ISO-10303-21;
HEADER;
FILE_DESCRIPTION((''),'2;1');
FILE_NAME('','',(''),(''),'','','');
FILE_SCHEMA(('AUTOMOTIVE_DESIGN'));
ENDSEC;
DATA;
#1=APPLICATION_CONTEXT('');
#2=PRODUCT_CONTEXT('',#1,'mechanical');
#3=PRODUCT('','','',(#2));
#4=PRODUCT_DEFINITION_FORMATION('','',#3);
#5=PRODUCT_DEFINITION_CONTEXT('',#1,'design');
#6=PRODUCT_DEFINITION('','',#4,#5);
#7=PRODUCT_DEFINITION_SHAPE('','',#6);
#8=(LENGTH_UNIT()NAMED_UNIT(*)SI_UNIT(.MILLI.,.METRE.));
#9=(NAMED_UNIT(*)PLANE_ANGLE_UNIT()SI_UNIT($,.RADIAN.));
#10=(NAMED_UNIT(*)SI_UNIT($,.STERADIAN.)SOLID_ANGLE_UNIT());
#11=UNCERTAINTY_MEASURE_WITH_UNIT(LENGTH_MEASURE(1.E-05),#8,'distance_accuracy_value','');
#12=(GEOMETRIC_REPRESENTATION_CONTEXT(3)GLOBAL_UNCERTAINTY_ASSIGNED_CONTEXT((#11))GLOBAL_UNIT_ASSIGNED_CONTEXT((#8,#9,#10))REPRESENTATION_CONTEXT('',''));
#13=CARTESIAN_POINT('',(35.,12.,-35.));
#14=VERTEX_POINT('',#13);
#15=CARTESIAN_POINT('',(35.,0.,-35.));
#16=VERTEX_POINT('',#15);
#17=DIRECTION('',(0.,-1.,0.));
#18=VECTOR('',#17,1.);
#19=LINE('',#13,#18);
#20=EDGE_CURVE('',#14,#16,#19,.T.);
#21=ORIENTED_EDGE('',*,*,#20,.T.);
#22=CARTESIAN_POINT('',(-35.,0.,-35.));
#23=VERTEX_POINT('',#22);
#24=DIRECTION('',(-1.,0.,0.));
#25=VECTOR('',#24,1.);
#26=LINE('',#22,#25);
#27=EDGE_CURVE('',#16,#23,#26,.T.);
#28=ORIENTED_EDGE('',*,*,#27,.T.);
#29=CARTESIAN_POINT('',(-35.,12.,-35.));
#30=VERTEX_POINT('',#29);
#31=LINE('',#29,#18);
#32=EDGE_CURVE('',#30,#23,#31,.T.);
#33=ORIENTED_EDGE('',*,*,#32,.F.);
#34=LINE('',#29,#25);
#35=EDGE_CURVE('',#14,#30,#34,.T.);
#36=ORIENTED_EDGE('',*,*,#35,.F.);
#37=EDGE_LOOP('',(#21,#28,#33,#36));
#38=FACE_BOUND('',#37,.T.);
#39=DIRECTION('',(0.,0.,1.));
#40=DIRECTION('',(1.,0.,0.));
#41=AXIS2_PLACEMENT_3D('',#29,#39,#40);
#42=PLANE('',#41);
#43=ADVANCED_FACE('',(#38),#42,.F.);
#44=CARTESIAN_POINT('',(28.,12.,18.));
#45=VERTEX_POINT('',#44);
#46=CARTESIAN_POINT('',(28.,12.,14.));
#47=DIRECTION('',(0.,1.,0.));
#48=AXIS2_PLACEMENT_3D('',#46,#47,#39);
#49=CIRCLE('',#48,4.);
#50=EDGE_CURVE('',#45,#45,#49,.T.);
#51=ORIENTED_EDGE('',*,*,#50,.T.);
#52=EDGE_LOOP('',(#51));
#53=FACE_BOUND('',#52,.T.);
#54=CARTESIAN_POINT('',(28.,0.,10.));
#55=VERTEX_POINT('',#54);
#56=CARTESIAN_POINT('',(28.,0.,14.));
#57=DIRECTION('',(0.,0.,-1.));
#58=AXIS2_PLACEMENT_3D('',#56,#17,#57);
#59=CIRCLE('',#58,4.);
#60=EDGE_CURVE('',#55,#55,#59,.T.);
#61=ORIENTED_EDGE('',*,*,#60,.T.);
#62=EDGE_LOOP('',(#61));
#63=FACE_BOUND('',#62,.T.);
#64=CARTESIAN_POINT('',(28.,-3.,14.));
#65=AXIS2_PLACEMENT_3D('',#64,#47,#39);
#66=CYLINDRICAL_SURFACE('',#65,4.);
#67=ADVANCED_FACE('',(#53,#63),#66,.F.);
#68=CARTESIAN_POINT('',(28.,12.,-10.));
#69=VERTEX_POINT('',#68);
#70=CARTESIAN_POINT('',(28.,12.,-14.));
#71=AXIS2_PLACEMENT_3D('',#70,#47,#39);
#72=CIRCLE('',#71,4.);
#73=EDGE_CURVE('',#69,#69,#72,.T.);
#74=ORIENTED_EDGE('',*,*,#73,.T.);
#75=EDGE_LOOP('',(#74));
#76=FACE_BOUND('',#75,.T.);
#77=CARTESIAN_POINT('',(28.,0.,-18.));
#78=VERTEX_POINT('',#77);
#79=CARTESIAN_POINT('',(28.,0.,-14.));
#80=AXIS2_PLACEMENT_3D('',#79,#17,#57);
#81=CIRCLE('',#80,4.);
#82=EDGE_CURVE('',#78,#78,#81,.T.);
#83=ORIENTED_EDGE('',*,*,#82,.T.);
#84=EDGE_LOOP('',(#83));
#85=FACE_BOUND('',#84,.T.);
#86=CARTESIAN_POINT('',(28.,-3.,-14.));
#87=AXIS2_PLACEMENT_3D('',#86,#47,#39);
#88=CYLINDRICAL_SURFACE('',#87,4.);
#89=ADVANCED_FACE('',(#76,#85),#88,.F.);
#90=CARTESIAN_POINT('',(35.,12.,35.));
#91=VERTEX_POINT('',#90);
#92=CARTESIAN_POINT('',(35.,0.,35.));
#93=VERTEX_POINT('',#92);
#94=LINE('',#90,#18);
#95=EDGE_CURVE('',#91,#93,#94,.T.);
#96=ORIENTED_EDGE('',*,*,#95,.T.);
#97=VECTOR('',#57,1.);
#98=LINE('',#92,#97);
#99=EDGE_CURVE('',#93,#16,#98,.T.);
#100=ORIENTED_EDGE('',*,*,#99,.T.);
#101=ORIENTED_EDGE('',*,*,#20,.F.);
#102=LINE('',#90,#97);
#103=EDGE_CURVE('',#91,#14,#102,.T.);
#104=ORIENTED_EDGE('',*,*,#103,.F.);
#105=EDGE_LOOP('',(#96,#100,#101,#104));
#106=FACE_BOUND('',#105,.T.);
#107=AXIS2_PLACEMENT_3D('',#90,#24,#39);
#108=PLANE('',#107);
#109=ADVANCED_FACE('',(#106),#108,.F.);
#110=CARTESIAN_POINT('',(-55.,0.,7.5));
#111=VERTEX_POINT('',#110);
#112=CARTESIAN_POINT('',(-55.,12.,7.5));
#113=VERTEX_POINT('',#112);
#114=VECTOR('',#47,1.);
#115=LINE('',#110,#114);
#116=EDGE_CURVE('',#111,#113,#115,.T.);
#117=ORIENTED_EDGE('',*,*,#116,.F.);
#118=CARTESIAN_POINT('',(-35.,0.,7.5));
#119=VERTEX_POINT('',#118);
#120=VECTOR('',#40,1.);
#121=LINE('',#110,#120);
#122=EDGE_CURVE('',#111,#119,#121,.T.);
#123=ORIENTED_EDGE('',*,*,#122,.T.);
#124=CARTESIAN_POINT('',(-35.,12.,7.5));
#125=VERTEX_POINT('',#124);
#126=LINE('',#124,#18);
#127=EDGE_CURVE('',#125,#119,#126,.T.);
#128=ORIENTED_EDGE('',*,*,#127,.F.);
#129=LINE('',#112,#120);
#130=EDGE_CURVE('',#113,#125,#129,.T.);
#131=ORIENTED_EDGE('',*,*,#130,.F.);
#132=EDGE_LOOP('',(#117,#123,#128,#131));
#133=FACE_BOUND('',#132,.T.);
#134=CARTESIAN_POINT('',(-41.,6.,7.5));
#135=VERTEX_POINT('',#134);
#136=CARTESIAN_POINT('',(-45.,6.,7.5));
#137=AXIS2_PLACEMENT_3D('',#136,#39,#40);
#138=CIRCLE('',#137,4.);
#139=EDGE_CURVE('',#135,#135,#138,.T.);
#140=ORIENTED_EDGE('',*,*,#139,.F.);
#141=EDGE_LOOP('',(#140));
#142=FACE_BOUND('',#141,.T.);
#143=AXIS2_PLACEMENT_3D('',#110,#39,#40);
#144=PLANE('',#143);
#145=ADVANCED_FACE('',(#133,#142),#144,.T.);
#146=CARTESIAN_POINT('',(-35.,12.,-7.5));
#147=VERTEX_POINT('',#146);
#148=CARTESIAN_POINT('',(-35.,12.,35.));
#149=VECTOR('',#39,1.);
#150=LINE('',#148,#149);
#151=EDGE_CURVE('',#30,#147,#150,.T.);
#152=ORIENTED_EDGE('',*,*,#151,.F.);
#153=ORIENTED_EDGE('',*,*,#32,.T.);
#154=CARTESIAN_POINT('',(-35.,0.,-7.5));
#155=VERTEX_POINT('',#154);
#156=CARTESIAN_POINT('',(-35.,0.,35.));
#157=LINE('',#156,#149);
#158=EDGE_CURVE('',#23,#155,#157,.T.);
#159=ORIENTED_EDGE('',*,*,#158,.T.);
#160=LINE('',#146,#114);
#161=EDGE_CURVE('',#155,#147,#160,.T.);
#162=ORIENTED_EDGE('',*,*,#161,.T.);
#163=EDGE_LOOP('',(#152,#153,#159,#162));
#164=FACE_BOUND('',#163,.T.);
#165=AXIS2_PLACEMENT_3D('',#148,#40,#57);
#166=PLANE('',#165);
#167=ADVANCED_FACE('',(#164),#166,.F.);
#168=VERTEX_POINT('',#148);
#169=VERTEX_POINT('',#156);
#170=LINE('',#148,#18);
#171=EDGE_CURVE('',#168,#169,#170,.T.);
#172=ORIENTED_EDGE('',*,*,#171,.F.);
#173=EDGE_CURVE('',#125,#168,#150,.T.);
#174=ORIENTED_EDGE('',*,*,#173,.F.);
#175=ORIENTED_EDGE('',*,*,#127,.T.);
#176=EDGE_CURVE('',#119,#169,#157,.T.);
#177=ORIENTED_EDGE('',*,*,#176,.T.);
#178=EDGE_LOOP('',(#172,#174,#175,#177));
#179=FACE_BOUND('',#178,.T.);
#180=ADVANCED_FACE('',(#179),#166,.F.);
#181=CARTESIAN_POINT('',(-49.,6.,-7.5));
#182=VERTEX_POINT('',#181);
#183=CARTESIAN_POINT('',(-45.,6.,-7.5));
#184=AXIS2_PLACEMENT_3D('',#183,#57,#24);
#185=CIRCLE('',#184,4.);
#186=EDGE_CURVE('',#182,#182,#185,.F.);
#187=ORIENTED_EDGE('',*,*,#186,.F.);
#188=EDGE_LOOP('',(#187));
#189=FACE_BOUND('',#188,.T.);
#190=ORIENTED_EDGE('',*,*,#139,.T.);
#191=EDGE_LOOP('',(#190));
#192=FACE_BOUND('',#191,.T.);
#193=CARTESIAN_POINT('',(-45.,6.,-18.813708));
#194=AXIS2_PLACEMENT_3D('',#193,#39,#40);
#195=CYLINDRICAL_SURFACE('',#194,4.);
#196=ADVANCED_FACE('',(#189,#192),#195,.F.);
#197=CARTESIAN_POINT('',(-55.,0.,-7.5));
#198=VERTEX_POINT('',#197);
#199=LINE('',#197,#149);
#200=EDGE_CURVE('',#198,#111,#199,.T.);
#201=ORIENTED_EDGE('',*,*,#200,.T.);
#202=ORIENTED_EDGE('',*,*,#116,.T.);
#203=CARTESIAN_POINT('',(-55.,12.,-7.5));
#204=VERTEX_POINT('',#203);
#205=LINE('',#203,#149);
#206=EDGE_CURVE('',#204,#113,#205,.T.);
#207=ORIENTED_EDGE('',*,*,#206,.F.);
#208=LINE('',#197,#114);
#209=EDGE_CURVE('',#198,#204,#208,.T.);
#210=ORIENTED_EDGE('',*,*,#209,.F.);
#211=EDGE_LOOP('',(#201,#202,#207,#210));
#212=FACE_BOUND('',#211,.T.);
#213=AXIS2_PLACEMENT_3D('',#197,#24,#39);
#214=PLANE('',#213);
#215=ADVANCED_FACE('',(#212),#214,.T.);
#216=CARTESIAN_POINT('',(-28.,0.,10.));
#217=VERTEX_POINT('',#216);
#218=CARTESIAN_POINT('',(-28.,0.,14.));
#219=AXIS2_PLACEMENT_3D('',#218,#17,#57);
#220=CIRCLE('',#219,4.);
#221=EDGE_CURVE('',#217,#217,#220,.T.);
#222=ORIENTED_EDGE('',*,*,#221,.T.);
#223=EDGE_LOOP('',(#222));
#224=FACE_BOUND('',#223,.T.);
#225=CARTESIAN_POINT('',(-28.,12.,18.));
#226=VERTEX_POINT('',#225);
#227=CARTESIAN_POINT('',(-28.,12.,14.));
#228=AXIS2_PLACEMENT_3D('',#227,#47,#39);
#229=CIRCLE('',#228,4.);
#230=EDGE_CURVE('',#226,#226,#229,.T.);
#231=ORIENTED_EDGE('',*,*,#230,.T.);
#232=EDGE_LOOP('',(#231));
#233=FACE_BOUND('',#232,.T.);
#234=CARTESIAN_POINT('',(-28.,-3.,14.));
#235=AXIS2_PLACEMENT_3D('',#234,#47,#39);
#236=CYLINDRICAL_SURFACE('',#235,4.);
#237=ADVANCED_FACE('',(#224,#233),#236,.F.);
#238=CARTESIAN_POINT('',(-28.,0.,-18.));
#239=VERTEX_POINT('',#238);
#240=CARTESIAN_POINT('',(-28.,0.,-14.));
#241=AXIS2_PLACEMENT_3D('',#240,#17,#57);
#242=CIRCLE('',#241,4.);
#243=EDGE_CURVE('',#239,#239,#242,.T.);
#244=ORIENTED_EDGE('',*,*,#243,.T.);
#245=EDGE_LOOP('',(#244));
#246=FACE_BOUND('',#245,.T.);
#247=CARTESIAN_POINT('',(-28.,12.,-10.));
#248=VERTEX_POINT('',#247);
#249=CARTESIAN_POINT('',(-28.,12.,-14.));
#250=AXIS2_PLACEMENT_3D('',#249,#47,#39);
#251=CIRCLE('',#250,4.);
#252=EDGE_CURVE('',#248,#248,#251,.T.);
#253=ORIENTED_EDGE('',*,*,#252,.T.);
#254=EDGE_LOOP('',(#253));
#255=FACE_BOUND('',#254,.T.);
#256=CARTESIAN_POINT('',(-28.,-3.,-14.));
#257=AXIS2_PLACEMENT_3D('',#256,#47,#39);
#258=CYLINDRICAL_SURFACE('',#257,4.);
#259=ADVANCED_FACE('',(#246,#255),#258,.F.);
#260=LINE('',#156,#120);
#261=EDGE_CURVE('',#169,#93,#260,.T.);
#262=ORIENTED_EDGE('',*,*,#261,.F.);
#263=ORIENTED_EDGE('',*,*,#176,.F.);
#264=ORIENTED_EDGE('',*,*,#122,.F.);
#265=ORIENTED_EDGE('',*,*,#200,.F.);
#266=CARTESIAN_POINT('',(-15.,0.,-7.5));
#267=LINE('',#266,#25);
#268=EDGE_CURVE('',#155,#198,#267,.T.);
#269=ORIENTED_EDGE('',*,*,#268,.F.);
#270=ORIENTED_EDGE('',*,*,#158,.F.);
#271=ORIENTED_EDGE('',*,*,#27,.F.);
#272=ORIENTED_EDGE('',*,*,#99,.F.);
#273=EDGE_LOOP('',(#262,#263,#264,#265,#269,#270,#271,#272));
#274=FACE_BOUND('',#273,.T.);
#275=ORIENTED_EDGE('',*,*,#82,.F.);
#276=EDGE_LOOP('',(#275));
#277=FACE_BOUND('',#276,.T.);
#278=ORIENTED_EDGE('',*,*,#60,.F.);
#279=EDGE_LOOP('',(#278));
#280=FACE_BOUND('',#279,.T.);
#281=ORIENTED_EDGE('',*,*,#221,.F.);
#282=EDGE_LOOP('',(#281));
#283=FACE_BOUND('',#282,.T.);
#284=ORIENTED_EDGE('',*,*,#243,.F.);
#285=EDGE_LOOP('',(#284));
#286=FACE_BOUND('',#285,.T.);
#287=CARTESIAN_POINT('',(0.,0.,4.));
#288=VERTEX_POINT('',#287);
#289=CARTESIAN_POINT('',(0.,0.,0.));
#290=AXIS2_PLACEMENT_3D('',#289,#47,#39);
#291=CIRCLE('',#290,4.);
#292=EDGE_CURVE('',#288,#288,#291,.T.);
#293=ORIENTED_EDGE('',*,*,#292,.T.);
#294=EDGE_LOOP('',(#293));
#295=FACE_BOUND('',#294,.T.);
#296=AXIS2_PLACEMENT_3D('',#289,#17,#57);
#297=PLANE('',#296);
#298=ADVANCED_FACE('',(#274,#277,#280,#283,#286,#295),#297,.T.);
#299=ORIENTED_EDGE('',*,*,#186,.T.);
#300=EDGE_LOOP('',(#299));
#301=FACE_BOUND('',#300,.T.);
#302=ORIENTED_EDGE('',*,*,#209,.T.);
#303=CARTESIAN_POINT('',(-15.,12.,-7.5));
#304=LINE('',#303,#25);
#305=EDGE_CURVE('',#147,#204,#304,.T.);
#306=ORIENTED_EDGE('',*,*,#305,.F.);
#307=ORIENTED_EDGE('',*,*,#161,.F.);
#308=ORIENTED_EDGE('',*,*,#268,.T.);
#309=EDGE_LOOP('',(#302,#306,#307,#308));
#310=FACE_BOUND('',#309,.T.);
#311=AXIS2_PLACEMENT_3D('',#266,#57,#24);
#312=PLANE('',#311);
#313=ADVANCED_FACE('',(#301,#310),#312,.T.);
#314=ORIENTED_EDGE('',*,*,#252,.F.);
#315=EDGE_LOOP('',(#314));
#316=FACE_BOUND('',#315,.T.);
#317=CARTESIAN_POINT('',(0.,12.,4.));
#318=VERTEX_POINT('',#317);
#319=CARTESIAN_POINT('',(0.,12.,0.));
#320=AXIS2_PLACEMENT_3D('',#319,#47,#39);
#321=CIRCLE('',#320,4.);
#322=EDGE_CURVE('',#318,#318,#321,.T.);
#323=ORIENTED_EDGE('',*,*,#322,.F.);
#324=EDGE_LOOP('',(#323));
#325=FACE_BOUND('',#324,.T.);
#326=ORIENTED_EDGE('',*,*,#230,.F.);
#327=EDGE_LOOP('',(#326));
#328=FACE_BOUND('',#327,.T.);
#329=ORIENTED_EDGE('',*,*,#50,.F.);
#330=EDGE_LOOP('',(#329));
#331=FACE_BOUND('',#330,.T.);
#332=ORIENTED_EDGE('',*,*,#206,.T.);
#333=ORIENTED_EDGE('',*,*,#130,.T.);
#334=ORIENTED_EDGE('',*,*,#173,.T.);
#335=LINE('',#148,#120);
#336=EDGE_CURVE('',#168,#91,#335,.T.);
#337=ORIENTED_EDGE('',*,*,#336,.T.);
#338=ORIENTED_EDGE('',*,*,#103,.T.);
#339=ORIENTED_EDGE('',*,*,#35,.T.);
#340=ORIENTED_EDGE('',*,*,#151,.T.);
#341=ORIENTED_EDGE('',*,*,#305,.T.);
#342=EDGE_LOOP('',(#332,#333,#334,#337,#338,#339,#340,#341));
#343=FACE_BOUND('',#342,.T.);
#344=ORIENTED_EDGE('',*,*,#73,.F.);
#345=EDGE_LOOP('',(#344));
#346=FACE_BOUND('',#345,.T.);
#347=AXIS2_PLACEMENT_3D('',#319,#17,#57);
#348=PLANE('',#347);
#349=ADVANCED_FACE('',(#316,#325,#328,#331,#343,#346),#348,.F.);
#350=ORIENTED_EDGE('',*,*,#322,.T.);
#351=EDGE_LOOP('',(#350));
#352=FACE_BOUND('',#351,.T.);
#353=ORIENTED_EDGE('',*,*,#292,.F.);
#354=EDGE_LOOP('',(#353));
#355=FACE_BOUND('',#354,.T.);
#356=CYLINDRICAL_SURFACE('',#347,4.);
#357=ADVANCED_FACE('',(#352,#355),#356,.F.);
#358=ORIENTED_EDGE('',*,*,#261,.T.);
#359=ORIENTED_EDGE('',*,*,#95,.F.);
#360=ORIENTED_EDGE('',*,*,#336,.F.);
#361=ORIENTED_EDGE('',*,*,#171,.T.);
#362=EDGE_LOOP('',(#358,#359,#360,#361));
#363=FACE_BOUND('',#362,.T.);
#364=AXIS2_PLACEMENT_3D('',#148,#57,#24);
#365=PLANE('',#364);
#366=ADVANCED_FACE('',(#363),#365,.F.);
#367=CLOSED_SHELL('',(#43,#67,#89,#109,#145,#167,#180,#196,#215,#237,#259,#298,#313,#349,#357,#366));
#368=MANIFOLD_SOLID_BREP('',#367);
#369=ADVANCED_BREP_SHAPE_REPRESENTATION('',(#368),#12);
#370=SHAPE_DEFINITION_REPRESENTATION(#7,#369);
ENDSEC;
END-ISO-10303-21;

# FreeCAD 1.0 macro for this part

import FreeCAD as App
import Part
import Sketcher
Q = App.Units.Quantity


def add_polygon(sketch, points):
    """Adds a closed chain of lines whose ends are joined by coincident constraints."""
    first, n = sketch.GeometryCount, len(points)
    for a, b in zip(points, points[1:] + points[:1]):
        sketch.addGeometry(Part.LineSegment(App.Vector(*a, 0), App.Vector(*b, 0)), False)
    for i in range(n):
        sketch.addConstraint(Sketcher.Constraint("Coincident", first + i, 2, first + (i + 1) % n, 1))

doc = App.newDocument("Part")
body = doc.addObject("PartDesign::Body", "Body")

# Sketch on XZ plane
sketch1 = body.newObject("Sketcher::SketchObject", "Sketch")
sketch1.AttachmentSupport = (doc.getObject("XZ_Plane"), [""])
sketch1.MapMode = "FlatFace"
add_polygon(sketch1, [(-35, -35), (-35, 35), (35, 35), (35, -35)])  # lines 0-3
sketch1.addGeometry(Part.Circle(App.Vector(0, 0, 0), App.Vector(0, 0, 1), 4), False)  # 4
sketch1.addConstraint([
    Sketcher.Constraint("Vertical", 0),
    Sketcher.Constraint("Horizontal", 1),
    Sketcher.Constraint("Vertical", 2),
    Sketcher.Constraint("Horizontal", 3),
    Sketcher.Constraint("Coincident", 4, 3, -1, 1),
    Sketcher.Constraint("Symmetric", 0, 2, 2, 2, -1, 1),
    Sketcher.Constraint("Equal", 3, 0),
    Sketcher.Constraint("Diameter", 4, Q("8 mm")),
    Sketcher.Constraint("DistanceX", 1, 1, 1, 2, Q("70 mm")),
])
pad1 = body.newObject("PartDesign::Pad", "Pad")
pad1.Profile = sketch1
pad1.Length = 12
pad1.Reversed = True

# Sketch on XZ plane
sketch2 = body.newObject("Sketcher::SketchObject", "Sketch001")
sketch2.AttachmentSupport = (doc.getObject("XZ_Plane"), [""])
sketch2.MapMode = "FlatFace"
sketch2.AttachmentOffset = App.Placement(App.Vector(0, 0, -12), App.Rotation())
sketch2.addGeometry([
    Part.Circle(App.Vector(-28, -14, 0), App.Vector(0, 0, 1), 4),
    Part.Circle(App.Vector(28, -14, 0), App.Vector(0, 0, 1), 4),
    Part.Circle(App.Vector(28, 14, 0), App.Vector(0, 0, 1), 4),
    Part.Circle(App.Vector(-28, 14, 0), App.Vector(0, 0, 1), 4),
], False)
sketch2.addConstraint([
    Sketcher.Constraint("Equal", 0, 1),
    Sketcher.Constraint("Equal", 1, 2),
    Sketcher.Constraint("Equal", 2, 3),
    Sketcher.Constraint("Symmetric", 0, 3, 2, 3, -1, 1),
    Sketcher.Constraint("Symmetric", 1, 3, 3, 3, -1, 1),
    Sketcher.Constraint("Symmetric", 0, 3, 1, 3, -2),
    Sketcher.Constraint("Diameter", 0, Q("8 mm")),
    Sketcher.Constraint("DistanceX", 0, 3, -1, 1, Q("28 mm")),
    Sketcher.Constraint("DistanceY", 0, 3, -1, 1, Q("14 mm")),
])
pocket1 = body.newObject("PartDesign::Pocket", "Pocket")
pocket1.Profile = sketch2
pocket1.Length = 15
pocket1.Reversed = True

# Sketch on XZ plane
sketch3 = body.newObject("Sketcher::SketchObject", "Sketch002")
sketch3.AttachmentSupport = (doc.getObject("XZ_Plane"), [""])
sketch3.MapMode = "FlatFace"
sketch3.AttachmentOffset = App.Placement(App.Vector(0, 0, -12), App.Rotation())
add_polygon(sketch3, [(-55, -8), (-55, 8), (-15, 8), (-15, -8)])  # lines 0-3
sketch3.addConstraint([
    Sketcher.Constraint("Vertical", 0),
    Sketcher.Constraint("Horizontal", 1),
    Sketcher.Constraint("Vertical", 2),
    Sketcher.Constraint("Horizontal", 3),
    Sketcher.Constraint("DistanceX", 1, 1, 1, 2, Q("40 mm")),
    Sketcher.Constraint("DistanceY", 0, 1, 0, 2, Q("15 mm")),
    Sketcher.Constraint("DistanceX", 0, 2, -1, 1, Q("55 mm")),
    Sketcher.Constraint("DistanceY", -1, 1, 0, 2, Q("7.5 mm")),
])
pad2 = body.newObject("PartDesign::Pad", "Pad001")
pad2.Profile = sketch3
pad2.Length = 12

# Sketch on XY plane
sketch4 = body.newObject("Sketcher::SketchObject", "Sketch003")
sketch4.AttachmentSupport = (doc.getObject("XY_Plane"), [""])
sketch4.MapMode = "FlatFace"
sketch4.AttachmentOffset = App.Placement(App.Vector(0, 0, 7.5), App.Rotation())
sketch4.addGeometry(Part.Circle(App.Vector(-45, 6, 0), App.Vector(0, 0, 1), 4), False)
sketch4.addConstraint([
    Sketcher.Constraint("Diameter", 0, Q("8 mm")),
    Sketcher.Constraint("DistanceX", 0, 3, -1, 1, Q("45 mm")),
    Sketcher.Constraint("DistanceY", -1, 1, 0, 3, Q("6 mm")),
])
pocket2 = body.newObject("PartDesign::Pocket", "Pocket001")
pocket2.Profile = sketch4
pocket2.Length = 15

doc.recompute()
